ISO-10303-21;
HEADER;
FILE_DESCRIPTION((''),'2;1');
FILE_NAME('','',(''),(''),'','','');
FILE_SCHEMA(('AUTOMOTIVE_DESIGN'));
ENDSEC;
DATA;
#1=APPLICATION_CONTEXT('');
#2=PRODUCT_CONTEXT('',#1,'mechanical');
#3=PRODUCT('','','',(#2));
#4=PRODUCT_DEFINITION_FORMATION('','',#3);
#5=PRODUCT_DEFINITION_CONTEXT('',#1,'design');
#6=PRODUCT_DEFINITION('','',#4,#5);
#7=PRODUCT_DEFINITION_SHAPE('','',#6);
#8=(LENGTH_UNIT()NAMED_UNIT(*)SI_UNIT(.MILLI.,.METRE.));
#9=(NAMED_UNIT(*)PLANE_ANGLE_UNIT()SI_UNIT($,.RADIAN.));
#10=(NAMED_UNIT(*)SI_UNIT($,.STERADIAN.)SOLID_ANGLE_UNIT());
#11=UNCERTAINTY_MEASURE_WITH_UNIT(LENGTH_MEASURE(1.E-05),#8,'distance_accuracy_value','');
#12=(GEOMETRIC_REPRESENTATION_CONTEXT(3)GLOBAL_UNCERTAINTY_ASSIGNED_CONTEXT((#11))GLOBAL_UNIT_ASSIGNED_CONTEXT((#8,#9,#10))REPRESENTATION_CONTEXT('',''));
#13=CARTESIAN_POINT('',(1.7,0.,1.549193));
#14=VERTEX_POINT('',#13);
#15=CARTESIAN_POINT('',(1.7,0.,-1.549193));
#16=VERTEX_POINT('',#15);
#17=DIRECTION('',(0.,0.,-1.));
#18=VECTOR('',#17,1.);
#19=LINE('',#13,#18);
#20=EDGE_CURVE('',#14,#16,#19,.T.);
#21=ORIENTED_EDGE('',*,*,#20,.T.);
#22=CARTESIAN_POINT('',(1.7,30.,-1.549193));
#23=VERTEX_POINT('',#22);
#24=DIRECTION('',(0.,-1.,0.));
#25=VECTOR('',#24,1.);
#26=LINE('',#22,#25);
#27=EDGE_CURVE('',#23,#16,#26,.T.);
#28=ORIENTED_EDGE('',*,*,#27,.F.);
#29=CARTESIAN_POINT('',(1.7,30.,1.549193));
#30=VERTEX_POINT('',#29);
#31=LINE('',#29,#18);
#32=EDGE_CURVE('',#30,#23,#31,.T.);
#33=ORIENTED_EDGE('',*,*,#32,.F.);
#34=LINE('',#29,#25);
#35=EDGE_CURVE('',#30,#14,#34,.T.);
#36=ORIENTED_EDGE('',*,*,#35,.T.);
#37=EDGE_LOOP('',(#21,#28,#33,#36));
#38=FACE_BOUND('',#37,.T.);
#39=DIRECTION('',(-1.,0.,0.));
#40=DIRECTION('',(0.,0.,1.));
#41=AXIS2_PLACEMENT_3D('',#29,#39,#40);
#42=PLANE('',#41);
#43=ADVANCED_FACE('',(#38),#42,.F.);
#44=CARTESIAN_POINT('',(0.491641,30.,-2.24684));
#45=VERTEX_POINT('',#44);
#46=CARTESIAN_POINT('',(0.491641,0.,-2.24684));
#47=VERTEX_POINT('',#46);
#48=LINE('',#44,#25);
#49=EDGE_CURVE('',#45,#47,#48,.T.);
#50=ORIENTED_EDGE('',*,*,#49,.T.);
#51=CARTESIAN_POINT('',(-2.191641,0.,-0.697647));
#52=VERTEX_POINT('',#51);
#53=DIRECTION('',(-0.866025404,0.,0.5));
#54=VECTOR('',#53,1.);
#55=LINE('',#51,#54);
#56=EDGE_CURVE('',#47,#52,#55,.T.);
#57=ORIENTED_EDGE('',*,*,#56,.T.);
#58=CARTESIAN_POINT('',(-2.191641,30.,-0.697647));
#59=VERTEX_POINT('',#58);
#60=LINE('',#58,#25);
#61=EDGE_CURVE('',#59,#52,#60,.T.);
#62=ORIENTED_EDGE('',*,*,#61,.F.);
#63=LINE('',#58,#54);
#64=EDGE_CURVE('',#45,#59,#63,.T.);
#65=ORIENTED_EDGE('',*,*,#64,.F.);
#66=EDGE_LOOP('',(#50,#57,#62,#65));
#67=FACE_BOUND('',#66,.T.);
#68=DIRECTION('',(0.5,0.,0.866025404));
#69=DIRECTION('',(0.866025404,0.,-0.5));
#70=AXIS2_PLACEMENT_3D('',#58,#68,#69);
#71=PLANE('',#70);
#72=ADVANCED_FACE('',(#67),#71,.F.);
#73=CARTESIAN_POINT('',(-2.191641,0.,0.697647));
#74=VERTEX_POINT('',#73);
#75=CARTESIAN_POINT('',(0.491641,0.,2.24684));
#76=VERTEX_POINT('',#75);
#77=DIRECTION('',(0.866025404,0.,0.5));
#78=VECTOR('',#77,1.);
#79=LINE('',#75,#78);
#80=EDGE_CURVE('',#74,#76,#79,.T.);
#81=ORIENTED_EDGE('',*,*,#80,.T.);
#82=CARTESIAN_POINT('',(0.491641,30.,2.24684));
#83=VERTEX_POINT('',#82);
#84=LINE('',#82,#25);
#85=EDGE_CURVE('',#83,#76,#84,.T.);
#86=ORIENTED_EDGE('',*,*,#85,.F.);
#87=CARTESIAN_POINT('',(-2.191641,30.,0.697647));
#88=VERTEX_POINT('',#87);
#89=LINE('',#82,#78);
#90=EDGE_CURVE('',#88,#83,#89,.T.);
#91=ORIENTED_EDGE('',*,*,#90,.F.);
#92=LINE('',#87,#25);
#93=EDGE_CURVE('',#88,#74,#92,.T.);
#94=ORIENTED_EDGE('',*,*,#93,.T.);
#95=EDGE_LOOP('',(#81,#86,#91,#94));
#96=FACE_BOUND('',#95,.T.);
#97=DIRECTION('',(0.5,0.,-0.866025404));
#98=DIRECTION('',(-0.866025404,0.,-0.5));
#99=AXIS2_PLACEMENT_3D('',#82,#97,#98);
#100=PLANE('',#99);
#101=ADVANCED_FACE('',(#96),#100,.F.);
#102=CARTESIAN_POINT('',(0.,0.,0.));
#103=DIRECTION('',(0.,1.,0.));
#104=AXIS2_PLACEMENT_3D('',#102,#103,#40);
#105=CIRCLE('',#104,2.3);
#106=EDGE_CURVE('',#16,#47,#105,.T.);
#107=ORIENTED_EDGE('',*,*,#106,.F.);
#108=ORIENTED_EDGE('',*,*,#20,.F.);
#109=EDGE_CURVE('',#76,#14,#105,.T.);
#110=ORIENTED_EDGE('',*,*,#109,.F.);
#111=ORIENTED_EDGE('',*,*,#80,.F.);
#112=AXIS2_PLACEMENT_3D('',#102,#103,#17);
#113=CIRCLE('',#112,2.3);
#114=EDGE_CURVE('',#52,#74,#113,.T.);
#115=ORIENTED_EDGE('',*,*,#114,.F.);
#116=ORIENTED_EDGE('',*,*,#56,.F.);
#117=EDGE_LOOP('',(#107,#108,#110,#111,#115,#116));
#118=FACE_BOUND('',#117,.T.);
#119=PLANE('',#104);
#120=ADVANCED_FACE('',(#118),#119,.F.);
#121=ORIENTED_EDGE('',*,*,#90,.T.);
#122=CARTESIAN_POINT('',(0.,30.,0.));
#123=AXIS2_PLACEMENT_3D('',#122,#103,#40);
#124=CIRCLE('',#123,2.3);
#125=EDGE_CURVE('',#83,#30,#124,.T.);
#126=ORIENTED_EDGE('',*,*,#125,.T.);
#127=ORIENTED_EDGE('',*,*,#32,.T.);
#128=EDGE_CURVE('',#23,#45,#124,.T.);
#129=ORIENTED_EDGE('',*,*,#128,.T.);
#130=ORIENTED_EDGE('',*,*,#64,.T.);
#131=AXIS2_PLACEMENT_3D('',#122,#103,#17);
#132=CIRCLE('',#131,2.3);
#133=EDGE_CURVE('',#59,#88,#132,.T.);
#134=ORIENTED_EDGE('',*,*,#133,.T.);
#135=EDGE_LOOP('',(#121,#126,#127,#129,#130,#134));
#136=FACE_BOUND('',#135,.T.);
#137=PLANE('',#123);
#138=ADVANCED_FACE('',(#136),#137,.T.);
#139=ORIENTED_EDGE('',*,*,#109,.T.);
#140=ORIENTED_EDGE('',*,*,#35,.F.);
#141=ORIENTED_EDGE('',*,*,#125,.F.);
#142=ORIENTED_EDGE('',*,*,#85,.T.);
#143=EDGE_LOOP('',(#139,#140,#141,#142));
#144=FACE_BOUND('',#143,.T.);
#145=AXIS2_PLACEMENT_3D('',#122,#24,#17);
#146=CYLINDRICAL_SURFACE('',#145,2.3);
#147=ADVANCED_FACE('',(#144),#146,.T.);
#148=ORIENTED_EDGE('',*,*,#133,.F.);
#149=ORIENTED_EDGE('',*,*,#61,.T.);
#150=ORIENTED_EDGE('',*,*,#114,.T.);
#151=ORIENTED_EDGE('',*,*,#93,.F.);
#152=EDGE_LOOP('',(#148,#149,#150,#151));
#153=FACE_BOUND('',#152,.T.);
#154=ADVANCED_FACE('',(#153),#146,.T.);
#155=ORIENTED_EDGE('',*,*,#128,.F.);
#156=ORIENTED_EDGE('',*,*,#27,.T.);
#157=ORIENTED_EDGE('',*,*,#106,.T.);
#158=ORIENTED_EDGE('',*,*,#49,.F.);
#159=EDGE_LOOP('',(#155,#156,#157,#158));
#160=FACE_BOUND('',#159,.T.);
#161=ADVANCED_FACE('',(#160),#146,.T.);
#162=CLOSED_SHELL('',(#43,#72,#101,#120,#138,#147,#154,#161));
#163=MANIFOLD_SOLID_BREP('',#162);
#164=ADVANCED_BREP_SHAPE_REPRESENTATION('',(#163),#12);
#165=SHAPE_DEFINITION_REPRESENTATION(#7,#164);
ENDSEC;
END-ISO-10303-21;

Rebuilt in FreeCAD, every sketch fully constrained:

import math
import FreeCAD as App
import Part
import Sketcher
Q = App.Units.Quantity

doc = App.newDocument("Part")
body = doc.addObject("PartDesign::Body", "Body")

# Sketch on XZ plane
sketch1 = body.newObject("Sketcher::SketchObject", "Sketch")
sketch1.AttachmentSupport = (doc.getObject("XZ_Plane"), [""])
sketch1.MapMode = "FlatFace"
sketch1.addGeometry([
    Part.LineSegment(App.Vector(-2.2, 0.7, 0), App.Vector(0.5, 2.2, 0)),  # 0
    Part.ArcOfCircle(Part.Circle(App.Vector(0, 0, 0), App.Vector(0, 0, 1), 2.3), math.radians(42), math.radians(78)),  # 1
    Part.LineSegment(App.Vector(1.7, 1.5, 0), App.Vector(1.7, -1.5, 0)),  # 2
    Part.ArcOfCircle(Part.Circle(App.Vector(0, 0, 0), App.Vector(0, 0, 1), 2.3), math.radians(-78), math.radians(-42)),  # 3
    Part.LineSegment(App.Vector(0.5, -2.2, 0), App.Vector(-2.2, -0.7, 0)),  # 4
    Part.ArcOfCircle(Part.Circle(App.Vector(0, 0, 0), App.Vector(0, 0, 1), 2.3), math.radians(162), math.radians(198)),  # 5
], False)
sketch1.addConstraint([
    Sketcher.Constraint("Coincident", 0, 2, 1, 2),
    Sketcher.Constraint("Coincident", 1, 1, 2, 1),
    Sketcher.Constraint("Coincident", 2, 2, 3, 2),
    Sketcher.Constraint("Coincident", 3, 1, 4, 1),
    Sketcher.Constraint("Coincident", 4, 2, 5, 2),
    Sketcher.Constraint("Coincident", 5, 1, 0, 1),
    Sketcher.Constraint("Vertical", 2),
    Sketcher.Constraint("Coincident", 1, 3, -1, 1),
    Sketcher.Constraint("Coincident", 3, 3, -1, 1),
    Sketcher.Constraint("Coincident", 5, 3, -1, 1),
    Sketcher.Constraint("Equal", 1, 3),
    Sketcher.Constraint("Equal", 3, 5),
    Sketcher.Constraint("Vertical", 0, 2, 3, 1),
    Sketcher.Constraint("Vertical", 4, 2, 5, 1),
    Sketcher.Constraint("Radius", 1, 2.3),
    Sketcher.Constraint("Angle", 0, Q("30 deg")),
    Sketcher.Constraint("DistanceX", -1, 1, 1, 1, 1.7),
    Sketcher.Constraint("DistanceX", -1, 1, 0, 2, 0.491641),
])
pad1 = body.newObject("PartDesign::Pad", "Pad")
pad1.Profile = sketch1
pad1.Length = 30
pad1.Reversed = True

doc.recompute()
